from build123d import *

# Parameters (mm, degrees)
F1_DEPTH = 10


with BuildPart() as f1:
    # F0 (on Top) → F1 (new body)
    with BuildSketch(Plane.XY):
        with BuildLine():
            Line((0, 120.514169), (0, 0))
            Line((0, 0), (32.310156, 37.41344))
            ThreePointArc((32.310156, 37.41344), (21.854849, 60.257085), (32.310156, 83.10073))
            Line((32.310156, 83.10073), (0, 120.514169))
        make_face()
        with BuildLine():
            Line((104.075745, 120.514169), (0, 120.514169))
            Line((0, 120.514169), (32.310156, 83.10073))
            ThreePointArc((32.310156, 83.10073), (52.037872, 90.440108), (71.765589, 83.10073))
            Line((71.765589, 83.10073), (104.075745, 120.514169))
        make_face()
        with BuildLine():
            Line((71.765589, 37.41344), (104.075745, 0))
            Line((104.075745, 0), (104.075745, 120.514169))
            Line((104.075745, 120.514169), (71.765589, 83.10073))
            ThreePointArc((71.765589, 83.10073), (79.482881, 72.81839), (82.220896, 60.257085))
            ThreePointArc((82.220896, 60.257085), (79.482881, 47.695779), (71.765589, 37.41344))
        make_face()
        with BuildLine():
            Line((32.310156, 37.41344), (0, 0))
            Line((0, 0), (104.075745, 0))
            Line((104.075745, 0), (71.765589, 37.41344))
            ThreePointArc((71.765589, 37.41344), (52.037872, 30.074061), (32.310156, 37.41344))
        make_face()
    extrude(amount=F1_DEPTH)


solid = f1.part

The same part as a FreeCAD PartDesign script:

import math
import FreeCAD as App
import Part
import Sketcher
from FreeCAD import Vector
Q = App.Units.Quantity


def add_polygon(sketch, points):
    """Adds a closed chain of lines whose ends are joined by coincident constraints."""
    first, n = sketch.GeometryCount, len(points)
    for a, b in zip(points, points[1:] + points[:1]):
        sketch.addGeometry(Part.LineSegment(App.Vector(*a, 0), App.Vector(*b, 0)), False)
    for i in range(n):
        sketch.addConstraint(Sketcher.Constraint("Coincident", first + i, 2, first + (i + 1) % n, 1))

doc = App.newDocument("Part")
body = doc.addObject("PartDesign::Body", "Body")

# Sketch on XY plane
sketch1 = body.newObject("Sketcher::SketchObject", "Sketch")
sketch1.AttachmentSupport = (doc.getObject("XY_Plane"), [""])
sketch1.MapMode = "FlatFace"
add_polygon(sketch1, [(0, 121), (0, 0), (104, 0), (104, 121)])  # lines 0-3
sketch1.addGeometry(Part.ArcOfCircle(Part.Circle(Vector(52, 60, 0), Vector(0, 0, 1), 30), math.radians(131), math.radians(229)), False)  # 4
sketch1.addGeometry(Part.ArcOfCircle(Part.Circle(Vector(52, 60, 0), Vector(0, 0, 1), 30), math.radians(49), math.radians(131)), False)  # 5
sketch1.addGeometry(Part.ArcOfCircle(Part.Circle(Vector(52, 60, 0), Vector(0, 0, 1), 30), math.radians(0), math.radians(49)), False)  # 6
sketch1.addGeometry(Part.ArcOfCircle(Part.Circle(Vector(52, 60, 0), Vector(0, 0, 1), 30), math.radians(-49), math.radians(0)), False)  # 7
sketch1.addGeometry(Part.ArcOfCircle(Part.Circle(Vector(52, 60, 0), Vector(0, 0, 1), 30), math.radians(-131), math.radians(-49)), False)  # 8
sketch1.addConstraint([
    Sketcher.Constraint("Tangent", 4, 1, 5, 2),
    Sketcher.Constraint("Tangent", 5, 1, 6, 2),
    Sketcher.Constraint("Tangent", 6, 1, 7, 2),
    Sketcher.Constraint("Tangent", 7, 1, 8, 2),
    Sketcher.Constraint("Tangent", 8, 1, 4, 2),
    Sketcher.Constraint("Vertical", 0),
    Sketcher.Constraint("Horizontal", 1),
    Sketcher.Constraint("Vertical", 2),
    Sketcher.Constraint("Horizontal", 3),
    Sketcher.Constraint("Coincident", 0, 2, -1, 1),
    Sketcher.Constraint("Coincident", 6, 3, 4, 3),
    Sketcher.Constraint("Horizontal", 4, 1, 5, 1),
    Sketcher.Constraint("Horizontal", 8, 3, 6, 1),
    Sketcher.Constraint("Horizontal", 7, 1, 8, 1),
    Sketcher.Constraint("Vertical", 5, 1, 7, 1),
    Sketcher.Constraint("Radius", 6, Q("30.18303 mm")),
    Sketcher.Constraint("DistanceY", 0, 2, 0, 1, Q("120.514169 mm")),
    Sketcher.Constraint("DistanceX", 1, 1, 1, 2, Q("104.075745 mm")),
    Sketcher.Constraint("DistanceX", -1, 1, 7, 3, Q("52.037871 mm")),
    Sketcher.Constraint("DistanceY", -1, 1, 4, 1, Q("83.10073 mm")),
    Sketcher.Constraint("DistanceX", -1, 1, 5, 1, Q("71.765589 mm")),
])
pad1 = body.newObject("PartDesign::Pad", "Pad")
pad1.Profile = sketch1
pad1.Length = 10

doc.recompute()
